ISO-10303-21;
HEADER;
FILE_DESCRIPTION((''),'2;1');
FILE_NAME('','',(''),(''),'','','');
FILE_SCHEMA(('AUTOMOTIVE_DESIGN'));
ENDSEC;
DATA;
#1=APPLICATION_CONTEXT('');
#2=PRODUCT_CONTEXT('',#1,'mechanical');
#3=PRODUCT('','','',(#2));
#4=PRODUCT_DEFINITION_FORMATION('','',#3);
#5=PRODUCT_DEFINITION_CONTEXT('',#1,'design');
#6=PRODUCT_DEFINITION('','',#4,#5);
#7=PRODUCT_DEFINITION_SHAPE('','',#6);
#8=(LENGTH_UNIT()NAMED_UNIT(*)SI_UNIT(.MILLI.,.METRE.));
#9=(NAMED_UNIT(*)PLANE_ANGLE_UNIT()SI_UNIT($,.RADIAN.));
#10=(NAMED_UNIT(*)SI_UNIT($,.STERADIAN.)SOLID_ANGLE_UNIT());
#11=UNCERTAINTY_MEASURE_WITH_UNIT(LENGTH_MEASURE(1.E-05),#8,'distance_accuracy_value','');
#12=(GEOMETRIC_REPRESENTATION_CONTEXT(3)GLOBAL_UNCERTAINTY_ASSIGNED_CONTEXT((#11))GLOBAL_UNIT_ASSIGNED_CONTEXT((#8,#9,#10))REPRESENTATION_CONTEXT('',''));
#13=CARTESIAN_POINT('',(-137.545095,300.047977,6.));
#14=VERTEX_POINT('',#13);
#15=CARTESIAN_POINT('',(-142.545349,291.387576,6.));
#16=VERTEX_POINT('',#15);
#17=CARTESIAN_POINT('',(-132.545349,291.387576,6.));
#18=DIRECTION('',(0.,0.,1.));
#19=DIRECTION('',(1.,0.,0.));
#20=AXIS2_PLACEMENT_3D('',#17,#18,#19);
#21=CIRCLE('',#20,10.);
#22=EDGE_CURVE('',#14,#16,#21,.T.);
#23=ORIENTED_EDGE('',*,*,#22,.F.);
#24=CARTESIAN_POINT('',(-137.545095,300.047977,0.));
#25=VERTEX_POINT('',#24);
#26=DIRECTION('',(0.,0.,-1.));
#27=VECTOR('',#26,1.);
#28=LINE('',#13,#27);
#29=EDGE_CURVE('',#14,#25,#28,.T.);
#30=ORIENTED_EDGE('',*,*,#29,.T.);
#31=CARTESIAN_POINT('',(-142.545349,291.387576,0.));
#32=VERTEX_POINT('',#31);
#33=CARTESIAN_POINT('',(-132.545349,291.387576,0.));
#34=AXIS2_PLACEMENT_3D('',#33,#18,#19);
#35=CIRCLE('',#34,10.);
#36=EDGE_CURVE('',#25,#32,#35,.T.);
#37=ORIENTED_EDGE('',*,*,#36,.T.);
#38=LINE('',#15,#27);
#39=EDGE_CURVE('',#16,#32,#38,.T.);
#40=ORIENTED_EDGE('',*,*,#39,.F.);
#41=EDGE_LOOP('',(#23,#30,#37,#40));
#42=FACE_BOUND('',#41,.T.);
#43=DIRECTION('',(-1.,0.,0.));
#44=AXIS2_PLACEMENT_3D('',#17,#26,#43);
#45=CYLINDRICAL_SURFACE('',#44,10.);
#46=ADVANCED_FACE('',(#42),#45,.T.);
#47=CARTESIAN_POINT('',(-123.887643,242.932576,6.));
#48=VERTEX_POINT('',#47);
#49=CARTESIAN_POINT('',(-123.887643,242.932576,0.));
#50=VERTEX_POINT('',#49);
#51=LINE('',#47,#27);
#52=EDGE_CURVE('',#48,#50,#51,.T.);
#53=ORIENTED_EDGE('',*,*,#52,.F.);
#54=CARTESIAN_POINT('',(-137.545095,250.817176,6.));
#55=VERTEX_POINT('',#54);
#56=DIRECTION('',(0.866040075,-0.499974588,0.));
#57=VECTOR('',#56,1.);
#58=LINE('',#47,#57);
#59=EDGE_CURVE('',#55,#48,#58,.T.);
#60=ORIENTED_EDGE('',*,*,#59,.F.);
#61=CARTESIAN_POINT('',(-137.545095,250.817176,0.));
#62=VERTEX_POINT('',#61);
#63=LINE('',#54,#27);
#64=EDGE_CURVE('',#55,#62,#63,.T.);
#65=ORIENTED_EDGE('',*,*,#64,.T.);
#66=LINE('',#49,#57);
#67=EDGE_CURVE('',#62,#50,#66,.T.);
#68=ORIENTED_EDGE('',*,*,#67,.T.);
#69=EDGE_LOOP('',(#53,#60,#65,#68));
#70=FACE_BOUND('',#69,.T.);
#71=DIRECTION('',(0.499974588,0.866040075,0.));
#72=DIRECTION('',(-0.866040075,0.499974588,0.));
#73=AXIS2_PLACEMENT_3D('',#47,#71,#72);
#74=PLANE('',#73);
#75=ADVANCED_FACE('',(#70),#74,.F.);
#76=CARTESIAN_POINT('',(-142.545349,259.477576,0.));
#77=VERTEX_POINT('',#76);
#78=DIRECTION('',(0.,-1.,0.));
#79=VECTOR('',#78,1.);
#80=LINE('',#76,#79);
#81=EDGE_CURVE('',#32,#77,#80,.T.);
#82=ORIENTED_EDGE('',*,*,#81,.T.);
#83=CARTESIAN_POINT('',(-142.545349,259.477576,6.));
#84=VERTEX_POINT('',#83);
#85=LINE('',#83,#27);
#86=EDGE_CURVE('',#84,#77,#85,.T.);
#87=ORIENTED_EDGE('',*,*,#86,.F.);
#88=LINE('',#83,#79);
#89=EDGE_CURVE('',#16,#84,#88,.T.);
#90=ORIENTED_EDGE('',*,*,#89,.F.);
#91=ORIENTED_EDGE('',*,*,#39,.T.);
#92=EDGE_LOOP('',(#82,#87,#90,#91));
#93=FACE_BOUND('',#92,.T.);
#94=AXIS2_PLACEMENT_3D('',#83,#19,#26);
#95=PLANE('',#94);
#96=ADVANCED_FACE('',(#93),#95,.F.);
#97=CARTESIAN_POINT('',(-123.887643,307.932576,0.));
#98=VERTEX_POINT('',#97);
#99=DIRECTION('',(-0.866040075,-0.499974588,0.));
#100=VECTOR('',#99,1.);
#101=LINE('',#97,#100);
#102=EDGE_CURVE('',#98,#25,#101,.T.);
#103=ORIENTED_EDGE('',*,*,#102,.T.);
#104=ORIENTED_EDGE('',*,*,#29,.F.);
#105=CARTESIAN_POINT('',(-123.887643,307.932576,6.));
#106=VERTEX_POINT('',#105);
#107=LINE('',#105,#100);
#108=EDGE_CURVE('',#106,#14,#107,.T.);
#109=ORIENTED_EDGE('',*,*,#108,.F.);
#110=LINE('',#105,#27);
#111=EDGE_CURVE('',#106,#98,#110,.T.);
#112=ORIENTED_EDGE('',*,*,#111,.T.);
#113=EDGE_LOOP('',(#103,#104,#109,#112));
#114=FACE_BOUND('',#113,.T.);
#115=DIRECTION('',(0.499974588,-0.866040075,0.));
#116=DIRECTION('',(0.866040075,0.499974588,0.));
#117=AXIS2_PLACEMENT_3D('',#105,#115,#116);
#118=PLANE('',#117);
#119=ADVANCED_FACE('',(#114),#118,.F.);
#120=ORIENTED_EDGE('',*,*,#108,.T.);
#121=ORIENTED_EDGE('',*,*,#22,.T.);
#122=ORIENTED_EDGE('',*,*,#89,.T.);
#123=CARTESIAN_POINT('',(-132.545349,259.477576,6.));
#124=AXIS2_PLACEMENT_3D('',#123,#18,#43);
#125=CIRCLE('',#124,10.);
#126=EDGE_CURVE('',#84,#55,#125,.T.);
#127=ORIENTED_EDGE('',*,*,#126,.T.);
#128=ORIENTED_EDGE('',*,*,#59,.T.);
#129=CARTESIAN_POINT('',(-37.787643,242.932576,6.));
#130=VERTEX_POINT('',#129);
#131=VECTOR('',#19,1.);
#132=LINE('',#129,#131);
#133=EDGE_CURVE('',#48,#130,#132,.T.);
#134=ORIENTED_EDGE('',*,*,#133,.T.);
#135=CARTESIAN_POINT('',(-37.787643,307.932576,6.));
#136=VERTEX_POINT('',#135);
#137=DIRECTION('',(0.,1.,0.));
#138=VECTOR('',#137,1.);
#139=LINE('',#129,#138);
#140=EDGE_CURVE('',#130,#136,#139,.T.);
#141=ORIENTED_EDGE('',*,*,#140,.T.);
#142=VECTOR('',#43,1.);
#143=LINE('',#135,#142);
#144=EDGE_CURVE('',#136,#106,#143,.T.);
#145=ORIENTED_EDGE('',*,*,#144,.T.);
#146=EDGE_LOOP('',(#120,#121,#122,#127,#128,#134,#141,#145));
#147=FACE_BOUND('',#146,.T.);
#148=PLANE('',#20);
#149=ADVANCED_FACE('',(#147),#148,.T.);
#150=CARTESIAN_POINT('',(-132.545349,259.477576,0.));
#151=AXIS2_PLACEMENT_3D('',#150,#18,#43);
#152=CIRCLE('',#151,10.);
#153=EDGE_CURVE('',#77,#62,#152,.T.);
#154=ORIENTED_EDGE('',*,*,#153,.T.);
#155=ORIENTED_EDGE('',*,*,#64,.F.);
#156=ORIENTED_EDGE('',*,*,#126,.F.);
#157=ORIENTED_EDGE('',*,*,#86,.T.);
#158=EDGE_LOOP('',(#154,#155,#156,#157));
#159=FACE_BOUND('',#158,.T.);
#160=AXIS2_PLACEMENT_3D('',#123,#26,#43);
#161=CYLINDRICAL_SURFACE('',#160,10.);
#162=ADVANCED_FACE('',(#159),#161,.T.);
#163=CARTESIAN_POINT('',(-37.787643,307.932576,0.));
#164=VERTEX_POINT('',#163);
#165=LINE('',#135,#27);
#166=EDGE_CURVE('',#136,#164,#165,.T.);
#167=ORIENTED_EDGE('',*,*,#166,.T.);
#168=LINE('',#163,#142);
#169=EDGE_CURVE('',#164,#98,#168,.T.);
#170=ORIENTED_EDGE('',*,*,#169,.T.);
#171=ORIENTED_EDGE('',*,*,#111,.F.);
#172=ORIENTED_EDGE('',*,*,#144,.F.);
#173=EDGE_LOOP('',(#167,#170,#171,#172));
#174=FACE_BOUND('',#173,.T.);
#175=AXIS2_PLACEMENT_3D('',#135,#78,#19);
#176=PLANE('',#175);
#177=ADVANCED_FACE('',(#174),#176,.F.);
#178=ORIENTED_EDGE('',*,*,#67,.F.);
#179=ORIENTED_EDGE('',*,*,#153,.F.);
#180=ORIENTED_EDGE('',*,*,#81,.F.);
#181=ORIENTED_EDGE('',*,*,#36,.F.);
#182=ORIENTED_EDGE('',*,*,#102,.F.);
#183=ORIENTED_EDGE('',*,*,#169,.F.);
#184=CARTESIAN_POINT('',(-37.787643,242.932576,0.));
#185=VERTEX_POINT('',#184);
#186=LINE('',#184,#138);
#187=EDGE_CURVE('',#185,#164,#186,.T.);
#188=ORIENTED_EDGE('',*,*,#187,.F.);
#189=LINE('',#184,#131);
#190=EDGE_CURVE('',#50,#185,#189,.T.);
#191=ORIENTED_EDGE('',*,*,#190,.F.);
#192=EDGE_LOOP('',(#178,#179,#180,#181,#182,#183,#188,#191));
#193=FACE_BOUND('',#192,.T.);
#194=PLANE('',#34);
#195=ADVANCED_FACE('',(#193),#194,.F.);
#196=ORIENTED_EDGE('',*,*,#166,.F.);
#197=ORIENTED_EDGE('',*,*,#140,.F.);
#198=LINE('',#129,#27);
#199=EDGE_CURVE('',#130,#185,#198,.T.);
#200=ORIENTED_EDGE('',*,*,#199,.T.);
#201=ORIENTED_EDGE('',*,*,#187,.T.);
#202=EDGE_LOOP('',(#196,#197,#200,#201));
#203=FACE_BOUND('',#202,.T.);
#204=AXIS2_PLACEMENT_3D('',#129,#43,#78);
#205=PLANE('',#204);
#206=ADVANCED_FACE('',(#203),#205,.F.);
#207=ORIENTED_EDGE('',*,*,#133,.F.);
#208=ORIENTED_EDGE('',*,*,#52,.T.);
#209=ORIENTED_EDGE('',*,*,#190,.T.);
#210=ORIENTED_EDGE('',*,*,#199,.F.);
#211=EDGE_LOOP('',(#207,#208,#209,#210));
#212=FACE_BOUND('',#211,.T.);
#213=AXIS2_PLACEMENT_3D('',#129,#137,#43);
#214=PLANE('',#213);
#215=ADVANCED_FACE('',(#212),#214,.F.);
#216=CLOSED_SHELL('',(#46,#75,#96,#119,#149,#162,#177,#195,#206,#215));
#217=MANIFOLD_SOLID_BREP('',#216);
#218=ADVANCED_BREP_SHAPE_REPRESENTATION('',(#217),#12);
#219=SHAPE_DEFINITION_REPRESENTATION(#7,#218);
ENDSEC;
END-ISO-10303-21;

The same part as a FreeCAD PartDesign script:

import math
import FreeCAD as App
import Part
import Sketcher

V = App.Vector

doc = App.newDocument("Part")
body = doc.addObject("PartDesign::Body", "Body")

# Sketch on XY plane
sketch1 = body.newObject("Sketcher::SketchObject", "Sketch")
sketch1.AttachmentSupport = (doc.getObject("XY_Plane"), [""])
sketch1.MapMode = "FlatFace"
sketch1.addGeometry(Part.LineSegment(V(-38, 308, 0), V(-124, 308, 0)), False)
sketch1.addGeometry(Part.LineSegment(V(-124, 308, 0), V(-138, 300, 0)), False)
sketch1.addGeometry(Part.ArcOfCircle(Part.Circle(V(-133, 291, 0), V(0, 0, 1), 10), math.radians(120), math.radians(180)), False)
sketch1.addGeometry(Part.LineSegment(V(-143, 291, 0), V(-143, 259, 0)), False)
sketch1.addGeometry(Part.ArcOfCircle(Part.Circle(V(-133, 259, 0), V(0, 0, 1), 10), math.radians(180), math.radians(240)), False)
sketch1.addGeometry(Part.LineSegment(V(-138, 251, 0), V(-124, 243, 0)), False)
sketch1.addGeometry(Part.LineSegment(V(-124, 243, 0), V(-38, 243, 0)), False)
sketch1.addGeometry(Part.LineSegment(V(-38, 243, 0), V(-38, 308, 0)), False)
sketch1.addConstraint(Sketcher.Constraint("Coincident", 0, 2, 1, 1))
sketch1.addConstraint(Sketcher.Constraint("Tangent", 1, 2, 2, 1))
sketch1.addConstraint(Sketcher.Constraint("Tangent", 2, 2, 3, 1))
sketch1.addConstraint(Sketcher.Constraint("Tangent", 3, 2, 4, 1))
sketch1.addConstraint(Sketcher.Constraint("Tangent", 4, 2, 5, 1))
sketch1.addConstraint(Sketcher.Constraint("Coincident", 5, 2, 6, 1))
sketch1.addConstraint(Sketcher.Constraint("Coincident", 6, 2, 7, 1))
sketch1.addConstraint(Sketcher.Constraint("Coincident", 7, 2, 0, 1))
sketch1.addConstraint(Sketcher.Constraint("Horizontal", 0))
sketch1.addConstraint(Sketcher.Constraint("Vertical", 3))
sketch1.addConstraint(Sketcher.Constraint("Horizontal", 6))
sketch1.addConstraint(Sketcher.Constraint("Vertical", 7))
sketch1.addConstraint(Sketcher.Constraint("Equal", 2, 4))
sketch1.addConstraint(Sketcher.Constraint("Vertical", 1, 2, 4, 2))
sketch1.addConstraint(Sketcher.Constraint("Vertical", 0, 2, 5, 2))
sketch1.addConstraint(Sketcher.Constraint("Radius", 2, 10.0))
sketch1.addConstraint(Sketcher.Constraint("DistanceY", 7, 1, 7, 2, 65.0))
sketch1.addConstraint(Sketcher.Constraint("DistanceX", 0, 2, 0, 1, 86.1))
sketch1.addConstraint(Sketcher.Constraint("DistanceY", 3, 2, 3, 1, 31.91))
sketch1.addConstraint(Sketcher.Constraint("Distance", 1, 15.77))
sketch1.addConstraint(Sketcher.Constraint("DistanceX", 2, 3, -1, 1, 132.545349))
sketch1.addConstraint(Sketcher.Constraint("DistanceY", -1, 1, 2, 3, 291.387576))
pad1 = body.newObject("PartDesign::Pad", "Pad")
pad1.Profile = sketch1
pad1.Length = 6

doc.recompute()
